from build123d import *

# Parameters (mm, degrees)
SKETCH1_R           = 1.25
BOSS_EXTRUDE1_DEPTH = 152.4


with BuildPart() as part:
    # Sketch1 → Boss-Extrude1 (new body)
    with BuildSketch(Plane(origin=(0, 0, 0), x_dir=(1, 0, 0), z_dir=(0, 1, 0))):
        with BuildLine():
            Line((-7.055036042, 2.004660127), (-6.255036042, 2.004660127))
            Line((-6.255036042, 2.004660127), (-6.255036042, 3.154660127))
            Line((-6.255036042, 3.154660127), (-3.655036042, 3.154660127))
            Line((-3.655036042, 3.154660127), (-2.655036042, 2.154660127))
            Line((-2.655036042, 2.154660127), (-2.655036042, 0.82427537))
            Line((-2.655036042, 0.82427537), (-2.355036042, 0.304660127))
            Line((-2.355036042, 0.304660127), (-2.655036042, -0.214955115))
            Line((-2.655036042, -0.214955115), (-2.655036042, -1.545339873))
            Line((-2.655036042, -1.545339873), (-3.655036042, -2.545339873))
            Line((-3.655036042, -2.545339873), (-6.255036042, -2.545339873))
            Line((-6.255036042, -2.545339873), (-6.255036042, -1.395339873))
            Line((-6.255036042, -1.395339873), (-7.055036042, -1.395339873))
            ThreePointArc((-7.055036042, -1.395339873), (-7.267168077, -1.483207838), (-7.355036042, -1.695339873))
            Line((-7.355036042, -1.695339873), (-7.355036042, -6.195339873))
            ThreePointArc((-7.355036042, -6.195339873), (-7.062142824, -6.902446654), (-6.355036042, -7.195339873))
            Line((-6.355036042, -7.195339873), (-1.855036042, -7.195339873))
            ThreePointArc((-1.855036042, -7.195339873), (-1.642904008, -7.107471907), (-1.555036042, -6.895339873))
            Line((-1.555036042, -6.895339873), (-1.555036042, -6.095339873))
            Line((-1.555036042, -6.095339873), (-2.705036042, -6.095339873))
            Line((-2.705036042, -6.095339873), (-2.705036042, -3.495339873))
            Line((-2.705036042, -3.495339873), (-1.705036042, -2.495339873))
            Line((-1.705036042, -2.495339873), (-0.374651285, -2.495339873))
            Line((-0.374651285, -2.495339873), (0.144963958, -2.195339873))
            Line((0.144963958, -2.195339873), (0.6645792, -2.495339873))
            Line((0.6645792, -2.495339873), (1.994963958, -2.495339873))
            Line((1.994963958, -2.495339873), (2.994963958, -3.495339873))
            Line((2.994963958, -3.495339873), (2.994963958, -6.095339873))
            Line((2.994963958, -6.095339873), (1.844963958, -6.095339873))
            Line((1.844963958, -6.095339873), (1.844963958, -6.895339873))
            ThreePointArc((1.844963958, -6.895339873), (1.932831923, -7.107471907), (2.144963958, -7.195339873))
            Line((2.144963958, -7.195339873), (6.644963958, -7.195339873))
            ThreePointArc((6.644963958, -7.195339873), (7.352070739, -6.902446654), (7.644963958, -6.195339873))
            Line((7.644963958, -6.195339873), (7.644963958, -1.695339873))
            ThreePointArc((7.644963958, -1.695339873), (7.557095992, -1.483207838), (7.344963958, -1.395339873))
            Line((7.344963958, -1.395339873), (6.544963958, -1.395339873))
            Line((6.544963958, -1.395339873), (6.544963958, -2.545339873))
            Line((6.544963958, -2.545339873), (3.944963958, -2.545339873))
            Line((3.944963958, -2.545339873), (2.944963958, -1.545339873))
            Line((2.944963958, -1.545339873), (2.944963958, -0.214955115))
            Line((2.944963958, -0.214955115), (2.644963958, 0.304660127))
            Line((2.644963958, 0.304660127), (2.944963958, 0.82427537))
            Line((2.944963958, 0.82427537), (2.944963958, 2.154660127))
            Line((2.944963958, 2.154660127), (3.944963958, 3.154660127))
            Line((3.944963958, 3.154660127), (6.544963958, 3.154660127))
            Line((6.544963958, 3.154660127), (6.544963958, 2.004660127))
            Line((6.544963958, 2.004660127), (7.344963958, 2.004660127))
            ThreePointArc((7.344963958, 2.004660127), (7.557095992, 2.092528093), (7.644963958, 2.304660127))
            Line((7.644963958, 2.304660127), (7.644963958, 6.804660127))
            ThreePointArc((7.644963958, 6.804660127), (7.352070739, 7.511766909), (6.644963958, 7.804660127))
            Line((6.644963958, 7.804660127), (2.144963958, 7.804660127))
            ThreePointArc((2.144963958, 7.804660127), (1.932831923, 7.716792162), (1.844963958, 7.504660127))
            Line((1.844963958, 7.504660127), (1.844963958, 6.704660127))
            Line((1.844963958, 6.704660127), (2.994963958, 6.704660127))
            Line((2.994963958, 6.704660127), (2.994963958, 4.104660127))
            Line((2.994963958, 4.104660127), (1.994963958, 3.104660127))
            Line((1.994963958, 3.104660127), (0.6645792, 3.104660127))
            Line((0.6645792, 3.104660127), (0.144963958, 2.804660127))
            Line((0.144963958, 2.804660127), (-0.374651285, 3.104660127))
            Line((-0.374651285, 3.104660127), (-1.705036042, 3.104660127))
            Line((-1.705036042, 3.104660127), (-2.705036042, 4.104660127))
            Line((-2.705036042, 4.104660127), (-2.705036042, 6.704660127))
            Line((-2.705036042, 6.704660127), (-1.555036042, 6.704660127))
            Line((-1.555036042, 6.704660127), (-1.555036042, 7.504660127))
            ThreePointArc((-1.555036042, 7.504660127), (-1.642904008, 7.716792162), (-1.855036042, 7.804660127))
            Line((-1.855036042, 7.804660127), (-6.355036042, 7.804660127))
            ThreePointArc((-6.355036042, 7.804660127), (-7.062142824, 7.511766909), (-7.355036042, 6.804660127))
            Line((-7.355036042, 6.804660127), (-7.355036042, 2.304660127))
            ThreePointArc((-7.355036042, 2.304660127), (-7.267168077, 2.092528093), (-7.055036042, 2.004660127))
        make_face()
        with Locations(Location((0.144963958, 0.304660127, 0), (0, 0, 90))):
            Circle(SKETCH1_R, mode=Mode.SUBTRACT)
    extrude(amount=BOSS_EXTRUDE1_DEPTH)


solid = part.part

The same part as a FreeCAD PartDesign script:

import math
import FreeCAD as App
import Part
import Sketcher
from FreeCAD import Vector
Q = App.Units.Quantity

doc = App.newDocument("Part")
params = doc.addObject("Spreadsheet::Sheet", "Params")
for row, (alias, value) in enumerate([
    ("sketch1_radius", "1 mm"),
    ("sketch1_diameter", "2.5 mm"),
    ("sketch1_radius2", "0.3 mm"),
    ("sketch1_width", "0.8 mm"),
    ("sketch1_width2", "2.6 mm"),
    ("pad1_length", "152.4 mm"),
], start=1):
    params.set(f"A{row}", alias)
    params.set(f"B{row}", "=" + value)
    params.setAlias(f"B{row}", alias)

body = doc.addObject("PartDesign::Body", "Body")

sketch1 = body.newObject("Sketcher::SketchObject", "Sketch")
sketch1.AttachmentSupport = (doc.getObject("XZ_Plane"), [""])
sketch1.MapMode = "FlatFace"
sketch1.addGeometry([
    Part.LineSegment(Vector(-7.055036, -2.00466, 0), Vector(-6.255036, -2.00466, 0)),
    Part.LineSegment(Vector(-6.255036, -2.00466, 0), Vector(-6.255036, -3.15466, 0)),
    Part.LineSegment(Vector(-6.255036, -3.15466, 0), Vector(-3.655036, -3.15466, 0)),
    Part.LineSegment(Vector(-3.655036, -3.15466, 0), Vector(-2.655036, -2.15466, 0)),
    Part.LineSegment(Vector(-2.655036, -2.15466, 0), Vector(-2.655036, -0.824275, 0)),
    Part.LineSegment(Vector(-2.655036, -0.824275, 0), Vector(-2.355036, -0.30466, 0)),
    Part.LineSegment(Vector(-2.355036, -0.30466, 0), Vector(-2.655036, 0.214955, 0)),
    Part.LineSegment(Vector(-2.655036, 0.214955, 0), Vector(-2.655036, 1.54534, 0)),
    Part.LineSegment(Vector(-2.655036, 1.54534, 0), Vector(-3.655036, 2.54534, 0)),
    Part.LineSegment(Vector(-3.655036, 2.54534, 0), Vector(-6.255036, 2.54534, 0)),
    Part.LineSegment(Vector(-6.255036, 2.54534, 0), Vector(-6.255036, 1.39534, 0)),
    Part.LineSegment(Vector(-6.255036, 1.39534, 0), Vector(-7.055036, 1.39534, 0)),
    Part.ArcOfCircle(Part.Circle(Vector(-7.055036, 1.69534, 0), Vector(0, 0, 1), 0.3), math.radians(180), math.radians(270)),
    Part.LineSegment(Vector(-7.355036, 1.69534, 0), Vector(-7.355036, 6.19534, 0)),
    Part.ArcOfCircle(Part.Circle(Vector(-6.355036, 6.19534, 0), Vector(0, 0, 1), 1), math.radians(90), math.radians(180)),
    Part.LineSegment(Vector(-6.355036, 7.19534, 0), Vector(-1.855036, 7.19534, 0)),
    Part.ArcOfCircle(Part.Circle(Vector(-1.855036, 6.89534, 0), Vector(0, 0, 1), 0.3), math.radians(0), math.radians(90)),
    Part.LineSegment(Vector(-1.555036, 6.89534, 0), Vector(-1.555036, 6.09534, 0)),
    Part.LineSegment(Vector(-1.555036, 6.09534, 0), Vector(-2.705036, 6.09534, 0)),
    Part.LineSegment(Vector(-2.705036, 6.09534, 0), Vector(-2.705036, 3.49534, 0)),
    Part.LineSegment(Vector(-2.705036, 3.49534, 0), Vector(-1.705036, 2.49534, 0)),
    Part.LineSegment(Vector(-1.705036, 2.49534, 0), Vector(-0.374651, 2.49534, 0)),
    Part.LineSegment(Vector(-0.374651, 2.49534, 0), Vector(0.144964, 2.19534, 0)),
    Part.LineSegment(Vector(0.144964, 2.19534, 0), Vector(0.664579, 2.49534, 0)),
    Part.LineSegment(Vector(0.664579, 2.49534, 0), Vector(1.994964, 2.49534, 0)),
    Part.LineSegment(Vector(1.994964, 2.49534, 0), Vector(2.994964, 3.49534, 0)),
    Part.LineSegment(Vector(2.994964, 3.49534, 0), Vector(2.994964, 6.09534, 0)),
    Part.LineSegment(Vector(2.994964, 6.09534, 0), Vector(1.844964, 6.09534, 0)),
    Part.LineSegment(Vector(1.844964, 6.09534, 0), Vector(1.844964, 6.89534, 0)),
    Part.ArcOfCircle(Part.Circle(Vector(2.144964, 6.89534, 0), Vector(0, 0, 1), 0.3), math.radians(90), math.radians(180)),
    Part.LineSegment(Vector(2.144964, 7.19534, 0), Vector(6.644964, 7.19534, 0)),
    Part.ArcOfCircle(Part.Circle(Vector(6.644964, 6.19534, 0), Vector(0, 0, 1), 1), math.radians(0), math.radians(90)),
    Part.LineSegment(Vector(7.644964, 6.19534, 0), Vector(7.644964, 1.69534, 0)),
    Part.ArcOfCircle(Part.Circle(Vector(7.344964, 1.69534, 0), Vector(0, 0, 1), 0.3), math.radians(-90), math.radians(0)),
    Part.LineSegment(Vector(7.344964, 1.39534, 0), Vector(6.544964, 1.39534, 0)),
    Part.LineSegment(Vector(6.544964, 1.39534, 0), Vector(6.544964, 2.54534, 0)),
    Part.LineSegment(Vector(6.544964, 2.54534, 0), Vector(3.944964, 2.54534, 0)),
    Part.LineSegment(Vector(3.944964, 2.54534, 0), Vector(2.944964, 1.54534, 0)),
    Part.LineSegment(Vector(2.944964, 1.54534, 0), Vector(2.944964, 0.214955, 0)),
    Part.LineSegment(Vector(2.944964, 0.214955, 0), Vector(2.644964, -0.30466, 0)),
    Part.LineSegment(Vector(2.644964, -0.30466, 0), Vector(2.944964, -0.824275, 0)),
    Part.LineSegment(Vector(2.944964, -0.824275, 0), Vector(2.944964, -2.15466, 0)),
    Part.LineSegment(Vector(2.944964, -2.15466, 0), Vector(3.944964, -3.15466, 0)),
    Part.LineSegment(Vector(3.944964, -3.15466, 0), Vector(6.544964, -3.15466, 0)),
    Part.LineSegment(Vector(6.544964, -3.15466, 0), Vector(6.544964, -2.00466, 0)),
    Part.LineSegment(Vector(6.544964, -2.00466, 0), Vector(7.344964, -2.00466, 0)),
    Part.ArcOfCircle(Part.Circle(Vector(7.344964, -2.30466, 0), Vector(0, 0, 1), 0.3), math.radians(0), math.radians(90)),
    Part.LineSegment(Vector(7.644964, -2.30466, 0), Vector(7.644964, -6.80466, 0)),
    Part.ArcOfCircle(Part.Circle(Vector(6.644964, -6.80466, 0), Vector(0, 0, 1), 1), math.radians(-90), math.radians(0)),
    Part.LineSegment(Vector(6.644964, -7.80466, 0), Vector(2.144964, -7.80466, 0)),
    Part.ArcOfCircle(Part.Circle(Vector(2.144964, -7.50466, 0), Vector(0, 0, 1), 0.3), math.radians(180), math.radians(270)),
    Part.LineSegment(Vector(1.844964, -7.50466, 0), Vector(1.844964, -6.70466, 0)),
    Part.LineSegment(Vector(1.844964, -6.70466, 0), Vector(2.994964, -6.70466, 0)),
    Part.LineSegment(Vector(2.994964, -6.70466, 0), Vector(2.994964, -4.10466, 0)),
    Part.LineSegment(Vector(2.994964, -4.10466, 0), Vector(1.994964, -3.10466, 0)),
    Part.LineSegment(Vector(1.994964, -3.10466, 0), Vector(0.664579, -3.10466, 0)),
    Part.LineSegment(Vector(0.664579, -3.10466, 0), Vector(0.144964, -2.80466, 0)),
    Part.LineSegment(Vector(0.144964, -2.80466, 0), Vector(-0.374651, -3.10466, 0)),
    Part.LineSegment(Vector(-0.374651, -3.10466, 0), Vector(-1.705036, -3.10466, 0)),
    Part.LineSegment(Vector(-1.705036, -3.10466, 0), Vector(-2.705036, -4.10466, 0)),
    Part.LineSegment(Vector(-2.705036, -4.10466, 0), Vector(-2.705036, -6.70466, 0)),
    Part.LineSegment(Vector(-2.705036, -6.70466, 0), Vector(-1.555036, -6.70466, 0)),
    Part.LineSegment(Vector(-1.555036, -6.70466, 0), Vector(-1.555036, -7.50466, 0)),
    Part.ArcOfCircle(Part.Circle(Vector(-1.855036, -7.50466, 0), Vector(0, 0, 1), 0.3), math.radians(-90), math.radians(0)),
    Part.LineSegment(Vector(-1.855036, -7.80466, 0), Vector(-6.355036, -7.80466, 0)),
    Part.ArcOfCircle(Part.Circle(Vector(-6.355036, -6.80466, 0), Vector(0, 0, 1), 1), math.radians(180), math.radians(270)),
    Part.LineSegment(Vector(-7.355036, -6.80466, 0), Vector(-7.355036, -2.30466, 0)),
    Part.ArcOfCircle(Part.Circle(Vector(-7.055036, -2.30466, 0), Vector(0, 0, 1), 0.3), math.radians(90), math.radians(180)),
    Part.Circle(Vector(0.144964, -0.30466, 0), Vector(0, 0, 1), 1.25),
], False)
sketch1.addConstraint([
    Sketcher.Constraint("Coincident", 0, 2, 1, 1),
    Sketcher.Constraint("Coincident", 1, 2, 2, 1),
    Sketcher.Constraint("Coincident", 2, 2, 3, 1),
    Sketcher.Constraint("Coincident", 3, 2, 4, 1),
    Sketcher.Constraint("Coincident", 4, 2, 5, 1),
    Sketcher.Constraint("Coincident", 5, 2, 6, 1),
    Sketcher.Constraint("Coincident", 6, 2, 7, 1),
    Sketcher.Constraint("Coincident", 7, 2, 8, 1),
    Sketcher.Constraint("Coincident", 8, 2, 9, 1),
    Sketcher.Constraint("Coincident", 9, 2, 10, 1),
    Sketcher.Constraint("Coincident", 10, 2, 11, 1),
    Sketcher.Constraint("Tangent", 11, 2, 12, 2),
    Sketcher.Constraint("Tangent", 12, 1, 13, 1),
    Sketcher.Constraint("Tangent", 13, 2, 14, 2),
    Sketcher.Constraint("Tangent", 14, 1, 15, 1),
    Sketcher.Constraint("Tangent", 15, 2, 16, 2),
    Sketcher.Constraint("Tangent", 16, 1, 17, 1),
    Sketcher.Constraint("Coincident", 17, 2, 18, 1),
    Sketcher.Constraint("Coincident", 18, 2, 19, 1),
    Sketcher.Constraint("Coincident", 19, 2, 20, 1),
    Sketcher.Constraint("Coincident", 20, 2, 21, 1),
    Sketcher.Constraint("Coincident", 21, 2, 22, 1),
    Sketcher.Constraint("Coincident", 22, 2, 23, 1),
    Sketcher.Constraint("Coincident", 23, 2, 24, 1),
    Sketcher.Constraint("Coincident", 24, 2, 25, 1),
    Sketcher.Constraint("Coincident", 25, 2, 26, 1),
    Sketcher.Constraint("Coincident", 26, 2, 27, 1),
    Sketcher.Constraint("Coincident", 27, 2, 28, 1),
    Sketcher.Constraint("Tangent", 28, 2, 29, 2),
    Sketcher.Constraint("Tangent", 29, 1, 30, 1),
    Sketcher.Constraint("Tangent", 30, 2, 31, 2),
    Sketcher.Constraint("Tangent", 31, 1, 32, 1),
    Sketcher.Constraint("Tangent", 32, 2, 33, 2),
    Sketcher.Constraint("Tangent", 33, 1, 34, 1),
    Sketcher.Constraint("Coincident", 34, 2, 35, 1),
    Sketcher.Constraint("Coincident", 35, 2, 36, 1),
    Sketcher.Constraint("Coincident", 36, 2, 37, 1),
    Sketcher.Constraint("Coincident", 37, 2, 38, 1),
    Sketcher.Constraint("Coincident", 38, 2, 39, 1),
    Sketcher.Constraint("Coincident", 39, 2, 40, 1),
    Sketcher.Constraint("Coincident", 40, 2, 41, 1),
    Sketcher.Constraint("Coincident", 41, 2, 42, 1),
    Sketcher.Constraint("Coincident", 42, 2, 43, 1),
    Sketcher.Constraint("Coincident", 43, 2, 44, 1),
    Sketcher.Constraint("Coincident", 44, 2, 45, 1),
    Sketcher.Constraint("Tangent", 45, 2, 46, 2),
    Sketcher.Constraint("Tangent", 46, 1, 47, 1),
    Sketcher.Constraint("Tangent", 47, 2, 48, 2),
    Sketcher.Constraint("Tangent", 48, 1, 49, 1),
    Sketcher.Constraint("Tangent", 49, 2, 50, 2),
    Sketcher.Constraint("Tangent", 50, 1, 51, 1),
    Sketcher.Constraint("Coincident", 51, 2, 52, 1),
    Sketcher.Constraint("Coincident", 52, 2, 53, 1),
    Sketcher.Constraint("Coincident", 53, 2, 54, 1),
    Sketcher.Constraint("Coincident", 54, 2, 55, 1),
    Sketcher.Constraint("Coincident", 55, 2, 56, 1),
    Sketcher.Constraint("Coincident", 56, 2, 57, 1),
    Sketcher.Constraint("Coincident", 57, 2, 58, 1),
    Sketcher.Constraint("Coincident", 58, 2, 59, 1),
    Sketcher.Constraint("Coincident", 59, 2, 60, 1),
    Sketcher.Constraint("Coincident", 60, 2, 61, 1),
    Sketcher.Constraint("Coincident", 61, 2, 62, 1),
    Sketcher.Constraint("Tangent", 62, 2, 63, 2),
    Sketcher.Constraint("Tangent", 63, 1, 64, 1),
    Sketcher.Constraint("Tangent", 64, 2, 65, 2),
    Sketcher.Constraint("Tangent", 65, 1, 66, 1),
    Sketcher.Constraint("Tangent", 66, 2, 67, 2),
    Sketcher.Constraint("Tangent", 67, 1, 0, 1),
    Sketcher.Constraint("Horizontal", 0),
    Sketcher.Constraint("Vertical", 1),
    Sketcher.Constraint("Horizontal", 2),
    Sketcher.Constraint("Vertical", 4),
    Sketcher.Constraint("Vertical", 7),
    Sketcher.Constraint("Horizontal", 9),
    Sketcher.Constraint("Vertical", 10),
    Sketcher.Constraint("Horizontal", 11),
    Sketcher.Constraint("Vertical", 13),
    Sketcher.Constraint("Horizontal", 15),
    Sketcher.Constraint("Vertical", 17),
    Sketcher.Constraint("Horizontal", 18),
    Sketcher.Constraint("Vertical", 19),
    Sketcher.Constraint("Horizontal", 21),
    Sketcher.Constraint("Horizontal", 24),
    Sketcher.Constraint("Vertical", 26),
    Sketcher.Constraint("Horizontal", 27),
    Sketcher.Constraint("Vertical", 28),
    Sketcher.Constraint("Horizontal", 30),
    Sketcher.Constraint("Vertical", 32),
    Sketcher.Constraint("Horizontal", 34),
    Sketcher.Constraint("Vertical", 35),
    Sketcher.Constraint("Horizontal", 36),
    Sketcher.Constraint("Vertical", 38),
    Sketcher.Constraint("Vertical", 41),
    Sketcher.Constraint("Horizontal", 43),
    Sketcher.Constraint("Vertical", 44),
    Sketcher.Constraint("Horizontal", 45),
    Sketcher.Constraint("Vertical", 47),
    Sketcher.Constraint("Horizontal", 49),
    Sketcher.Constraint("Vertical", 51),
    Sketcher.Constraint("Horizontal", 52),
    Sketcher.Constraint("Vertical", 53),
    Sketcher.Constraint("Horizontal", 55),
    Sketcher.Constraint("Horizontal", 58),
    Sketcher.Constraint("Vertical", 60),
    Sketcher.Constraint("Horizontal", 61),
    Sketcher.Constraint("Vertical", 62),
    Sketcher.Constraint("Horizontal", 64),
    Sketcher.Constraint("Vertical", 66),
    Sketcher.Constraint("Equal", 12, 16),
    Sketcher.Constraint("Equal", 16, 29),
    Sketcher.Constraint("Equal", 14, 31),
    Sketcher.Constraint("Equal", 29, 33),
    Sketcher.Constraint("Equal", 33, 46),
    Sketcher.Constraint("Equal", 31, 48),
    Sketcher.Constraint("Equal", 46, 50),
    Sketcher.Constraint("Equal", 50, 63),
    Sketcher.Constraint("Equal", 48, 65),
    Sketcher.Constraint("Equal", 63, 67),
    Sketcher.Constraint("Perpendicular", 3, 8),
    Sketcher.Constraint("Parallel", 8, 20),
    Sketcher.Constraint("Perpendicular", 5, 22),
    Sketcher.Constraint("Perpendicular", 6, 23),
    Sketcher.Constraint("Perpendicular", 20, 25),
    Sketcher.Constraint("Parallel", 25, 37),
    Sketcher.Constraint("Perpendicular", 22, 39),
    Sketcher.Constraint("Perpendicular", 23, 40),
    Sketcher.Constraint("Perpendicular", 37, 42),
    Sketcher.Constraint("Parallel", 42, 54),
    Sketcher.Constraint("Perpendicular", 39, 56),
    Sketcher.Constraint("Perpendicular", 40, 57),
    Sketcher.Constraint("Perpendicular", 54, 59),
    Sketcher.Constraint("Horizontal", 16, 3, 29, 3),
    Sketcher.Constraint("Horizontal", 12, 3, 33, 3),
    Sketcher.Constraint("Horizontal", 50, 3, 63, 3),
    Sketcher.Constraint("Horizontal", 46, 3, 67, 3),
    Sketcher.Constraint("Horizontal", 68, 3, 5, 2),
    Sketcher.Constraint("Horizontal", 21, 2, 23, 2),
    Sketcher.Constraint("Horizontal", 19, 2, 25, 2),
    Sketcher.Constraint("Horizontal", 18, 2, 26, 2),
    Sketcher.Constraint("Horizontal", 9, 2, 35, 2),
    Sketcher.Constraint("Horizontal", 7, 2, 37, 2),
    Sketcher.Constraint("Horizontal", 6, 2, 38, 2),
    Sketcher.Constraint("Horizontal", 5, 2, 39, 2),
    Sketcher.Constraint("Horizontal", 4, 2, 40, 2),
    Sketcher.Constraint("Horizontal", 3, 2, 41, 2),
    Sketcher.Constraint("Horizontal", 2, 2, 42, 2),
    Sketcher.Constraint("Horizontal", 55, 2, 57, 2),
    Sketcher.Constraint("Horizontal", 53, 2, 59, 2),
    Sketcher.Constraint("Horizontal", 52, 2, 60, 2),
    Sketcher.Constraint("Vertical", 33, 3, 46, 3),
    Sketcher.Constraint("Vertical", 29, 3, 50, 3),
    Sketcher.Constraint("Vertical", 16, 3, 63, 3),
    Sketcher.Constraint("Vertical", 14, 3, 65, 3),
    Sketcher.Constraint("Vertical", 4, 2, 6, 2),
    Sketcher.Constraint("Vertical", 2, 2, 8, 2),
    Sketcher.Constraint("Vertical", 1, 2, 9, 2),
    Sketcher.Constraint("Vertical", 68, 3, 22, 2),
    Sketcher.Constraint("Vertical", 38, 2, 40, 2),
    Sketcher.Constraint("Vertical", 36, 2, 42, 2),
    Sketcher.Constraint("Vertical", 35, 2, 43, 2),
    Sketcher.Constraint("Vertical", 26, 2, 52, 2),
    Sketcher.Constraint("Vertical", 24, 2, 54, 2),
    Sketcher.Constraint("Vertical", 23, 2, 55, 2),
    Sketcher.Constraint("Vertical", 22, 2, 56, 2),
    Sketcher.Constraint("Vertical", 20, 2, 58, 2),
    Sketcher.Constraint("Equal", 21, 24),
    Sketcher.Constraint("Equal", 18, 27),
    Sketcher.Constraint("Equal", 15, 30),
    Sketcher.Constraint("Equal", 11, 34),
    Sketcher.Constraint("Equal", 9, 36),
    Sketcher.Constraint("Equal", 61, 1),
    Sketcher.Constraint("Equal", 58, 4),
    Sketcher.Constraint("Equal", 4, 7),
    Sketcher.Constraint("Equal", 1, 10),
    Sketcher.Constraint("Equal", 64, 13),
    Sketcher.Constraint("Equal", 45, 17),
    Sketcher.Constraint("Equal", 43, 19),
    Sketcher.Constraint("Equal", 32, 47),
    Sketcher.Constraint("Equal", 28, 51),
    Sketcher.Constraint("Equal", 26, 53),
    Sketcher.Constraint("Equal", 8, 20),
    Sketcher.Constraint("Equal", 6, 22),
    Sketcher.Constraint("Radius", 14, Q("1 mm")),
    Sketcher.Constraint("Diameter", 68, Q("2.5 mm")),
    Sketcher.Constraint("Radius", 12, Q("0.3 mm")),
    Sketcher.Constraint("Angle", 5, Q("60 deg")),
    Sketcher.Constraint("DistanceX", 0, 1, 0, 2, Q("0.8 mm")),
    Sketcher.Constraint("DistanceX", 2, 1, 2, 2, Q("2.6 mm")),
    Sketcher.Constraint("DistanceX", 15, 1, 15, 2, Q("4.5 mm")),
    Sketcher.Constraint("Distance", 5, Q("0.6 mm")),
    Sketcher.Constraint("DistanceX", 18, 2, 18, 1, Q("1.15 mm")),
    Sketcher.Constraint("DistanceX", 21, 1, 21, 2, Q("1.330385 mm")),
    Sketcher.Constraint("DistanceY", -1, 1, 12, 3, Q("1.69534 mm")),
    Sketcher.Constraint("DistanceY", 46, 3, -1, 1, Q("2.30466 mm")),
    Sketcher.Constraint("DistanceX", 21, 2, -1, 1, Q("0.374651 mm")),
])
sketch1.setExpression("Constraints[182]", "Params.sketch1_radius")
sketch1.setExpression("Constraints[183]", "Params.sketch1_diameter")
sketch1.setExpression("Constraints[184]", "Params.sketch1_radius2")
sketch1.setExpression("Constraints[186]", "Params.sketch1_width")
sketch1.setExpression("Constraints[187]", "Params.sketch1_width2")
pad1 = body.newObject("PartDesign::Pad", "Pad")
pad1.Profile = sketch1
pad1.setExpression("Length", "Params.pad1_length")
pad1.Reversed = True

doc.recompute()
